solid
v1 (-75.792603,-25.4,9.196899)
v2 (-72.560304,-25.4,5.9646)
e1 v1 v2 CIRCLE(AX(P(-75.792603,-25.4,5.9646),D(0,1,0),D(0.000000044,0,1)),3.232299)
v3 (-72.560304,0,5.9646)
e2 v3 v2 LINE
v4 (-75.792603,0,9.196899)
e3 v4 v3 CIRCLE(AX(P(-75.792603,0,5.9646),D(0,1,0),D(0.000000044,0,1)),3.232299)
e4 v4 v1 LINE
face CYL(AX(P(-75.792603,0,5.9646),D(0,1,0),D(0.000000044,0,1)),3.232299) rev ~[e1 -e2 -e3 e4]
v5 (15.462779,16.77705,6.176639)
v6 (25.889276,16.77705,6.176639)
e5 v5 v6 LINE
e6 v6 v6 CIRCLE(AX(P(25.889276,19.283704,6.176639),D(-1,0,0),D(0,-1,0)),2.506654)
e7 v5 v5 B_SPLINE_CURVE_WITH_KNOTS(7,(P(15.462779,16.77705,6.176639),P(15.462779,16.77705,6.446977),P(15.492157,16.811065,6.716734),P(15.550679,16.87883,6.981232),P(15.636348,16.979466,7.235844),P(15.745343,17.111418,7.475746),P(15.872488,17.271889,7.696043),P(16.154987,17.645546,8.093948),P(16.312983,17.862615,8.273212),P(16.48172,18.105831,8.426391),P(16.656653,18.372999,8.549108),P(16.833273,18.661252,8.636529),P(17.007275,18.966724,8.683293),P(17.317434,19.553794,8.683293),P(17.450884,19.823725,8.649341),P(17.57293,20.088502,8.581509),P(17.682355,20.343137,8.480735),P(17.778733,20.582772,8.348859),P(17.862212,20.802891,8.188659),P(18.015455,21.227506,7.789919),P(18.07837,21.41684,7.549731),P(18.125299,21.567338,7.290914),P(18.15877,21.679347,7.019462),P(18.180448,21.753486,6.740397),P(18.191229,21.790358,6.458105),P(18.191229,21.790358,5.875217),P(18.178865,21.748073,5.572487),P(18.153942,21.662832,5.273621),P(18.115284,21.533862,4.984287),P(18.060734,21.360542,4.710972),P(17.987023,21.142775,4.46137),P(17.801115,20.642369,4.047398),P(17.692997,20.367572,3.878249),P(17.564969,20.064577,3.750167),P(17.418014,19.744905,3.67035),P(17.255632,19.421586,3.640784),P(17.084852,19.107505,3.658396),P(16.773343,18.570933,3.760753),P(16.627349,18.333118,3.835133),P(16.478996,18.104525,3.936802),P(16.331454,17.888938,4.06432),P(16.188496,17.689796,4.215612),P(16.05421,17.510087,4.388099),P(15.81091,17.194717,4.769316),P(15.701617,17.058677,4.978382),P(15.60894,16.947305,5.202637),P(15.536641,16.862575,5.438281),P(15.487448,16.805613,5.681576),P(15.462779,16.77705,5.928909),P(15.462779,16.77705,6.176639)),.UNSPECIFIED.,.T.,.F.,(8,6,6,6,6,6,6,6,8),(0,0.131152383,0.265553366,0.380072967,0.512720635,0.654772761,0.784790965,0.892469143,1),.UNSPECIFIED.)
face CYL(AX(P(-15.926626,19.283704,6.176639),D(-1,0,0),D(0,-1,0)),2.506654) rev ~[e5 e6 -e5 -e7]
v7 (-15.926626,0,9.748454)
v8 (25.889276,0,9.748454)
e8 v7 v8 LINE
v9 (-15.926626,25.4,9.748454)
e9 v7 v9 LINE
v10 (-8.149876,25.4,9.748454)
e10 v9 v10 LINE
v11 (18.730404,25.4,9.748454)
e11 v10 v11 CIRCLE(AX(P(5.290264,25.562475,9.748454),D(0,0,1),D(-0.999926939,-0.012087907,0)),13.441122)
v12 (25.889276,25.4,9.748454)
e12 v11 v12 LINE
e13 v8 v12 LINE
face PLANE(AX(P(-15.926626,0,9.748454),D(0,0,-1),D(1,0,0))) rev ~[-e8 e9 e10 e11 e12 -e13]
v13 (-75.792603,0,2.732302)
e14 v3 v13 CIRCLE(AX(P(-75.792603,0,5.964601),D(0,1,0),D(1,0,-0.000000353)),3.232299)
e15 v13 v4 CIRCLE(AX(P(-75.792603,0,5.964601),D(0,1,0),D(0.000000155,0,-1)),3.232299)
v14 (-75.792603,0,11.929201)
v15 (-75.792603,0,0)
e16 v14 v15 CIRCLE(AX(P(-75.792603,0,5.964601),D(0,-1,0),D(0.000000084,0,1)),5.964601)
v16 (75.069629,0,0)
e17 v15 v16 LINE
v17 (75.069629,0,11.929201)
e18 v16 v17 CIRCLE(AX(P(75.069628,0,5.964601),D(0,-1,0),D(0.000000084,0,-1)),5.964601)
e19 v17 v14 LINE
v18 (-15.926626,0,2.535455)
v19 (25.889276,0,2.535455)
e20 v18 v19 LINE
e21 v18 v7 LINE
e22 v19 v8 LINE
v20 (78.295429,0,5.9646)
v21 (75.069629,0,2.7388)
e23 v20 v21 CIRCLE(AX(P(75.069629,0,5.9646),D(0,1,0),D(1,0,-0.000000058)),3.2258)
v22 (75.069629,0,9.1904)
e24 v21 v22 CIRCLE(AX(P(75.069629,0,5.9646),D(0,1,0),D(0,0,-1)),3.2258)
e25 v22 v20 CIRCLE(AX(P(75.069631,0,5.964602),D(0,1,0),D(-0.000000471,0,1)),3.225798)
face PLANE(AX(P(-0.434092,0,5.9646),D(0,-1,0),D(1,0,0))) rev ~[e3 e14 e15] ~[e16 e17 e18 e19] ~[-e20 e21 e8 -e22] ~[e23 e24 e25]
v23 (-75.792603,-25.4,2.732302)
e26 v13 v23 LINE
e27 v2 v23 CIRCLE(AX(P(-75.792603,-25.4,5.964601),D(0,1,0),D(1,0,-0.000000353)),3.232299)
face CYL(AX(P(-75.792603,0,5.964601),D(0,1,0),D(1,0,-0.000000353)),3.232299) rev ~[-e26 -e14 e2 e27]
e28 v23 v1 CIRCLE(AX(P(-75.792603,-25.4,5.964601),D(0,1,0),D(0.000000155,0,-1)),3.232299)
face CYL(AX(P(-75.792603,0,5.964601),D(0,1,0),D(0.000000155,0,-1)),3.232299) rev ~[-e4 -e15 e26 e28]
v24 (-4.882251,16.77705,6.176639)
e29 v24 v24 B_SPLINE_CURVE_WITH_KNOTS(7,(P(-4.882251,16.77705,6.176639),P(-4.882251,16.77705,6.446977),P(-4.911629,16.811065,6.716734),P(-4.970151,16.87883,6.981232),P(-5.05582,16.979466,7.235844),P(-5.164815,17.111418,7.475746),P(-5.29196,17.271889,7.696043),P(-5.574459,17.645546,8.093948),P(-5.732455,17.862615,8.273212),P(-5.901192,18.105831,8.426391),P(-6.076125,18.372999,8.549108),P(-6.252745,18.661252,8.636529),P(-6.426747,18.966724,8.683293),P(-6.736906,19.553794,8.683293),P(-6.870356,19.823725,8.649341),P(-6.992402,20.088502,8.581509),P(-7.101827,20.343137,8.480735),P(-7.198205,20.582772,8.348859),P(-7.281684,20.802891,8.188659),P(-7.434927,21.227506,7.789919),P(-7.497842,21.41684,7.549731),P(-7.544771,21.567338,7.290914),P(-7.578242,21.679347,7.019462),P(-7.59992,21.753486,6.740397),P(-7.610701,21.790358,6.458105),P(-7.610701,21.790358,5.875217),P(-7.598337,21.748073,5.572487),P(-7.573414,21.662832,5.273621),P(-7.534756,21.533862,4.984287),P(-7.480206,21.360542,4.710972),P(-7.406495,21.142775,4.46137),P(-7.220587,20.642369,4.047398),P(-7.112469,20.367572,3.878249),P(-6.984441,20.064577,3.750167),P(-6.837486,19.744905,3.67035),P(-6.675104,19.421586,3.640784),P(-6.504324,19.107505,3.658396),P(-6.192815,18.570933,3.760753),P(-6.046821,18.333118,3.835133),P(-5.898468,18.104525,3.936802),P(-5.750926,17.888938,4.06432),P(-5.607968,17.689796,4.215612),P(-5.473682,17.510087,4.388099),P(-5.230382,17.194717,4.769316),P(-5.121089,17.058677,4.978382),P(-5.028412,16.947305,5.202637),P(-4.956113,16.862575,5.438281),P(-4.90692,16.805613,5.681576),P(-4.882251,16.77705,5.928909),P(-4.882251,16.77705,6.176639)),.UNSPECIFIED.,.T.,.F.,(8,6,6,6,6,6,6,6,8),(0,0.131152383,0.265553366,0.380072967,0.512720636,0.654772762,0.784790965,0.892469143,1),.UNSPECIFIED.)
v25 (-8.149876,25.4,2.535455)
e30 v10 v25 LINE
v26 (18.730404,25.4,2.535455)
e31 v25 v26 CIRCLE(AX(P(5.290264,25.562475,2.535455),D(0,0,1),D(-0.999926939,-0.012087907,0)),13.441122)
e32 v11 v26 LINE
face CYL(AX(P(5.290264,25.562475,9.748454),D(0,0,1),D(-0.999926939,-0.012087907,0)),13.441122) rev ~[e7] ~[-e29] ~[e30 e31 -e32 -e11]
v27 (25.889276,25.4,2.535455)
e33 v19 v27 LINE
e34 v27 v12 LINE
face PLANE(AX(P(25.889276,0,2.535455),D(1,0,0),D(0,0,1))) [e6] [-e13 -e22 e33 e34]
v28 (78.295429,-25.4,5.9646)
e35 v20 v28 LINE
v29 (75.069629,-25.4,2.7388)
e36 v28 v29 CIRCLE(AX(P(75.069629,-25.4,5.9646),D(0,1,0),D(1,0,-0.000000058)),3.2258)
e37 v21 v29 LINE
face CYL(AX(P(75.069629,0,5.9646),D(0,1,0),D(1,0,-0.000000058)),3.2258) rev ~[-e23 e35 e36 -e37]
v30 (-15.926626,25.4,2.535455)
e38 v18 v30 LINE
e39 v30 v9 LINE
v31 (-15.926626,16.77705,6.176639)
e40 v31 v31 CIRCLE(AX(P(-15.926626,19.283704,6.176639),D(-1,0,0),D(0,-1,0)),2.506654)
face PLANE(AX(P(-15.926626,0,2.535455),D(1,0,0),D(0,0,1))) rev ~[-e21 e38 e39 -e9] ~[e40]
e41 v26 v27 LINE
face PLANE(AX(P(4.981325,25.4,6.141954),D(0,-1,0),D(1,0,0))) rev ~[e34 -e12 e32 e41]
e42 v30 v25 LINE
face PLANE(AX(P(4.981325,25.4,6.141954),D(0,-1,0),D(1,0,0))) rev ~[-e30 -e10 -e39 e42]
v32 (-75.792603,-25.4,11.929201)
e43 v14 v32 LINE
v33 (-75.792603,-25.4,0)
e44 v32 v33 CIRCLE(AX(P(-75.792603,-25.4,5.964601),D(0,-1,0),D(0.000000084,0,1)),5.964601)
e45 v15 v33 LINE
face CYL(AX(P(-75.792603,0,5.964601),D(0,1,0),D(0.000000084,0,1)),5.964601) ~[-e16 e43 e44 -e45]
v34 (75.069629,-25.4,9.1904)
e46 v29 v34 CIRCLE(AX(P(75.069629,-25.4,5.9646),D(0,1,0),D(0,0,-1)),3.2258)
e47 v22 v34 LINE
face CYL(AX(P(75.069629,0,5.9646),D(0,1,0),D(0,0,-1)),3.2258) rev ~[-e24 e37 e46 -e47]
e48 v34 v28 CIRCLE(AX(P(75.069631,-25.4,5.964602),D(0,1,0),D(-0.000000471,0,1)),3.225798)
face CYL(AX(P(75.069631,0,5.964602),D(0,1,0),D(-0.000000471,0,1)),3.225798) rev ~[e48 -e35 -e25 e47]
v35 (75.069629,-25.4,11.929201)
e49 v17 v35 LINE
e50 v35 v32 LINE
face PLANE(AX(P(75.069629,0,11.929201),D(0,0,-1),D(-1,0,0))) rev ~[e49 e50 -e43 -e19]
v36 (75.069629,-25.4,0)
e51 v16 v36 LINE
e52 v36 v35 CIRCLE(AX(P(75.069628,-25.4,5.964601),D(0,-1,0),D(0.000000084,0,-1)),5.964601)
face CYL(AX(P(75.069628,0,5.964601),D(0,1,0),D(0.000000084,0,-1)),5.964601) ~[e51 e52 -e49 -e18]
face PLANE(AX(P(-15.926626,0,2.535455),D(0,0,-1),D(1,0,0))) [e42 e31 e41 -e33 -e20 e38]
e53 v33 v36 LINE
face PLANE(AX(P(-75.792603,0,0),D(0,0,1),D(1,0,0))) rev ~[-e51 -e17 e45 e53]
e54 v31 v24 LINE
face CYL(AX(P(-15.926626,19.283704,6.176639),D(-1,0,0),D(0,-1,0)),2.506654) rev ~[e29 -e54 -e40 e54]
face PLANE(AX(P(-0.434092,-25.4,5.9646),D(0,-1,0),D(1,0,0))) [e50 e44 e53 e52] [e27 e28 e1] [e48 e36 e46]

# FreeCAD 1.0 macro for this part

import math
import FreeCAD as App
import Part
import Sketcher
from FreeCAD import Vector
Q = App.Units.Quantity

doc = App.newDocument("Part")
body = doc.addObject("PartDesign::Body", "Body")

sketch1 = body.newObject("Sketcher::SketchObject", "Sketch")
sketch1.AttachmentSupport = (doc.getObject("XZ_Plane"), [""])
sketch1.MapMode = "FlatFace"
sketch1.addGeometry(Part.LineSegment(Vector(75.1, 11.9, 0), Vector(-75.8, 11.9, 0)), False)
sketch1.addGeometry(Part.ArcOfCircle(Part.Circle(Vector(-75.8, 6, 0), Vector(0, 0, 1), 6), math.radians(90), math.radians(270)), False)
sketch1.addGeometry(Part.LineSegment(Vector(-75.8, 0, 0), Vector(75.1, 0, 0)), False)
sketch1.addGeometry(Part.ArcOfCircle(Part.Circle(Vector(75.1, 6, 0), Vector(0, 0, 1), 6), math.radians(-90), math.radians(90)), False)
sketch1.addGeometry(Part.ArcOfCircle(Part.Circle(Vector(75.1, 6, 0), Vector(0, 0, 1), 3.2), math.radians(90), math.radians(270)), False)
sketch1.addGeometry(Part.ArcOfCircle(Part.Circle(Vector(75.1, 6, 0), Vector(0, 0, 1), 3.2), math.radians(0), math.radians(90)), False)
sketch1.addGeometry(Part.ArcOfCircle(Part.Circle(Vector(75.1, 6, 0), Vector(0, 0, 1), 3.2), math.radians(-90), math.radians(0)), False)
sketch1.addGeometry(Part.ArcOfCircle(Part.Circle(Vector(-75.8, 6, 0), Vector(0, 0, 1), 3.2), math.radians(0), math.radians(90)), False)
sketch1.addGeometry(Part.ArcOfCircle(Part.Circle(Vector(-75.8, 6, 0), Vector(0, 0, 1), 3.2), math.radians(-90), math.radians(0)), False)
sketch1.addGeometry(Part.ArcOfCircle(Part.Circle(Vector(-75.8, 6, 0), Vector(0, 0, 1), 3.2), math.radians(90), math.radians(270)), False)
sketch1.addConstraint(Sketcher.Constraint("Tangent", 0, 2, 1, 1))
sketch1.addConstraint(Sketcher.Constraint("Tangent", 1, 2, 2, 1))
sketch1.addConstraint(Sketcher.Constraint("Tangent", 2, 2, 3, 1))
sketch1.addConstraint(Sketcher.Constraint("Tangent", 3, 2, 0, 1))
sketch1.addConstraint(Sketcher.Constraint("Tangent", 4, 1, 5, 2))
sketch1.addConstraint(Sketcher.Constraint("Tangent", 5, 1, 6, 2))
sketch1.addConstraint(Sketcher.Constraint("Tangent", 6, 1, 4, 2))
sketch1.addConstraint(Sketcher.Constraint("Tangent", 7, 1, 8, 2))
sketch1.addConstraint(Sketcher.Constraint("Tangent", 8, 1, 9, 2))
sketch1.addConstraint(Sketcher.Constraint("Tangent", 9, 1, 7, 2))
sketch1.addConstraint(Sketcher.Constraint("Horizontal", 0))
sketch1.addConstraint(Sketcher.Constraint("Horizontal", 2))
sketch1.addConstraint(Sketcher.Constraint("Coincident", 4, 3, 3, 3))
sketch1.addConstraint(Sketcher.Constraint("Coincident", 7, 3, 1, 3))
sketch1.addConstraint(Sketcher.Constraint("PointOnObject", 1, 2, -1))
sketch1.addConstraint(Sketcher.Constraint("Horizontal", 9, 3, 5, 1))
sketch1.addConstraint(Sketcher.Constraint("Horizontal", 5, 1, 7, 1))
sketch1.addConstraint(Sketcher.Constraint("Vertical", 3, 2, 4, 1))
sketch1.addConstraint(Sketcher.Constraint("Vertical", 4, 1, 6, 1))
sketch1.addConstraint(Sketcher.Constraint("Vertical", 1, 2, 8, 1))
sketch1.addConstraint(Sketcher.Constraint("Vertical", 8, 1, 9, 1))
sketch1.addConstraint(Sketcher.Constraint("Radius", 4, Q("0.127 in")))
sketch1.addConstraint(Sketcher.Constraint("Radius", 1, Q("5.964601 mm")))
sketch1.addConstraint(Sketcher.Constraint("Radius", 7, Q("3.232299 mm")))
sketch1.addConstraint(Sketcher.Constraint("DistanceX", 0, 2, 0, 1, Q("150.862232 mm")))
sketch1.addConstraint(Sketcher.Constraint("DistanceX", -1, 1, 3, 3, Q("75.069628 mm")))
pad1 = body.newObject("PartDesign::Pad", "Pad")
pad1.Profile = sketch1
pad1.Length = Q("1 in")

sketch2 = body.newObject("Sketcher::SketchObject", "Sketch001")
sketch2.AttachmentSupport = (doc.getObject("XZ_Plane"), [""])
sketch2.MapMode = "FlatFace"
sketch2.addGeometry(Part.LineSegment(Vector(-16, 10, 0), Vector(-16, 3, 0)), False)
sketch2.addGeometry(Part.LineSegment(Vector(-16, 3, 0), Vector(26, 3, 0)), False)
sketch2.addGeometry(Part.LineSegment(Vector(26, 3, 0), Vector(26, 10, 0)), False)
sketch2.addGeometry(Part.LineSegment(Vector(26, 10, 0), Vector(-16, 10, 0)), False)
sketch2.addConstraint(Sketcher.Constraint("Coincident", 0, 2, 1, 1))
sketch2.addConstraint(Sketcher.Constraint("Coincident", 1, 2, 2, 1))
sketch2.addConstraint(Sketcher.Constraint("Coincident", 2, 2, 3, 1))
sketch2.addConstraint(Sketcher.Constraint("Coincident", 3, 2, 0, 1))
sketch2.addConstraint(Sketcher.Constraint("Vertical", 0))
sketch2.addConstraint(Sketcher.Constraint("Horizontal", 1))
sketch2.addConstraint(Sketcher.Constraint("Vertical", 2))
sketch2.addConstraint(Sketcher.Constraint("Horizontal", 3))
sketch2.addConstraint(Sketcher.Constraint("DistanceY", 0, 2, 0, 1, Q("7.212999 mm")))
sketch2.addConstraint(Sketcher.Constraint("DistanceX", 1, 1, 1, 2, Q("41.815902 mm")))
sketch2.addConstraint(Sketcher.Constraint("DistanceX", 0, 2, -1, 1, Q("15.926626 mm")))
sketch2.addConstraint(Sketcher.Constraint("DistanceY", -1, 1, 0, 2, Q("2.535455 mm")))
pad2 = body.newObject("PartDesign::Pad", "Pad001")
pad2.Profile = sketch2
pad2.Length = Q("1 in")
pad2.Reversed = True

sketch3 = body.newObject("Sketcher::SketchObject", "Sketch002")
sketch3.AttachmentSupport = (doc.getObject("XY_Plane"), [""])
sketch3.MapMode = "FlatFace"
sketch3.AttachmentOffset = App.Placement(Vector(0, 0, 9.748454), App.Rotation())
sketch3.addGeometry(Part.LineSegment(Vector(19, 25, 0), Vector(-8, 25, 0)), False)
sketch3.addGeometry(Part.ArcOfCircle(Part.Circle(Vector(5, 26, 0), Vector(0, 0, 1), 13), math.radians(-179), math.radians(-1)), False)
sketch3.addConstraint(Sketcher.Constraint("Coincident", 0, 1, 1, 2))
sketch3.addConstraint(Sketcher.Constraint("Coincident", 1, 1, 0, 2))
sketch3.addConstraint(Sketcher.Constraint("Horizontal", 0))
sketch3.addConstraint(Sketcher.Constraint("DistanceY", -1, 1, 0, 1, Q("1 in")))
sketch3.addConstraint(Sketcher.Constraint("Radius", 1, Q("13.441122 mm")))
sketch3.addConstraint(Sketcher.Constraint("DistanceX", 0, 2, 0, 1, Q("26.88028 mm")))
sketch3.addConstraint(Sketcher.Constraint("DistanceX", -1, 1, 1, 3, Q("5.290264 mm")))
pocket1 = body.newObject("PartDesign::Pocket", "Pocket")
pocket1.Profile = sketch3
pocket1.Length = Q("0.3 in")

sketch4 = body.newObject("Sketcher::SketchObject", "Sketch003")
sketch4.AttachmentSupport = (doc.getObject("YZ_Plane"), [""])
sketch4.MapMode = "FlatFace"
sketch4.AttachmentOffset = App.Placement(Vector(0, 0, -15.926626), App.Rotation())
sketch4.addGeometry(Part.Circle(Vector(19.3, 6.2, 0), Vector(0, 0, 1), 2.5), False)
sketch4.addConstraint(Sketcher.Constraint("Diameter", 0, Q("5.013308 mm")))
sketch4.addConstraint(Sketcher.Constraint("DistanceY", -1, 1, 0, 3, Q("6.176639 mm")))
sketch4.addConstraint(Sketcher.Constraint("DistanceX", -1, 1, 0, 3, Q("19.283704 mm")))
pocket2 = body.newObject("PartDesign::Pocket", "Pocket001")
pocket2.Profile = sketch4
pocket2.Length = Q("1.81 in")
pocket2.Reversed = True

doc.recompute()
